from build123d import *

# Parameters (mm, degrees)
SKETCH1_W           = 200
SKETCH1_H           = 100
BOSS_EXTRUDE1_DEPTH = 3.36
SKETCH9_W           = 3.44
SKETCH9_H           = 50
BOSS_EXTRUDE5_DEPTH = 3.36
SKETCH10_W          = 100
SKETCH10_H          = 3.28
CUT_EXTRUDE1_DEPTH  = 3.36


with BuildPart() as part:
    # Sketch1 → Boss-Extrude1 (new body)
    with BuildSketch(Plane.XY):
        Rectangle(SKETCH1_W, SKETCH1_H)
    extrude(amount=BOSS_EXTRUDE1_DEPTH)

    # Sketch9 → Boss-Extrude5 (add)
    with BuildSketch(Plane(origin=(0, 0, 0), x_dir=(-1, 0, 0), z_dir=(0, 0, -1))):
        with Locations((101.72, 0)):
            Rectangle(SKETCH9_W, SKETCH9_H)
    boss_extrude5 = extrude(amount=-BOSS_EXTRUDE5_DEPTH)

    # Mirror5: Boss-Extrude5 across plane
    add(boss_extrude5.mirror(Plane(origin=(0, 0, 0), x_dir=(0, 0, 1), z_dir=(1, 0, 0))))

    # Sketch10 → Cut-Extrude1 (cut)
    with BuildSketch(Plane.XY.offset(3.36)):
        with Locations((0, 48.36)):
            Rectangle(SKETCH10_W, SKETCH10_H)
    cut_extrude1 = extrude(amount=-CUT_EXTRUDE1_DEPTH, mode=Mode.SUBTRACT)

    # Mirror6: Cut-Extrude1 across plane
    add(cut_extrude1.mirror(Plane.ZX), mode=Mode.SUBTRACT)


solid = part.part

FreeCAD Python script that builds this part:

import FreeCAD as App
import Part
import Sketcher
Q = App.Units.Quantity


def add_polygon(sketch, points):
    """Adds a closed chain of lines whose ends are joined by coincident constraints."""
    first, n = sketch.GeometryCount, len(points)
    for a, b in zip(points, points[1:] + points[:1]):
        sketch.addGeometry(Part.LineSegment(App.Vector(*a, 0), App.Vector(*b, 0)), False)
    for i in range(n):
        sketch.addConstraint(Sketcher.Constraint("Coincident", first + i, 2, first + (i + 1) % n, 1))

doc = App.newDocument("Part")
params = doc.addObject("Spreadsheet::Sheet", "Params")
for row, (alias, value) in enumerate([
    ("sketch1_width", "200 mm"),
    ("sketch1_height", "100 mm"),
    ("pad1_length", "3.36 mm"),
    ("sketch2_height", "50 mm"),
    ("sketch2_width", "3.44 mm"),
    ("pad2_length", "3.36 mm"),
    ("sketch3_width", "100 mm"),
    ("sketch3_height", "3.28 mm"),
    ("pocket1_length", "3.36 mm"),
], start=1):
    params.set(f"A{row}", alias)
    params.set(f"B{row}", "=" + value)
    params.setAlias(f"B{row}", alias)

body = doc.addObject("PartDesign::Body", "Body")

# Sketch on XY plane
sketch1 = doc.addObject("Sketcher::SketchObject", "Sketch")
body.addObject(sketch1)
sketch1.AttachmentSupport = (doc.XY_Plane, [""])
sketch1.MapMode = "FlatFace"
add_polygon(sketch1, [(-100, 50), (-100, -50), (100, -50), (100, 50)])  # lines 0-3
sketch1.addConstraint([
    Sketcher.Constraint("Vertical", 0),
    Sketcher.Constraint("Horizontal", 1),
    Sketcher.Constraint("Vertical", 2),
    Sketcher.Constraint("Horizontal", 3),
    Sketcher.Constraint("Symmetric", 0, 2, 2, 2, -1, 1),
    Sketcher.Constraint("DistanceX", 1, 1, 1, 2, Q("200 mm")),
    Sketcher.Constraint("DistanceY", 0, 2, 0, 1, Q("100 mm")),
])
sketch1.setExpression("Constraints[9]", "Params.sketch1_width")
sketch1.setExpression("Constraints[10]", "Params.sketch1_height")
pad1 = doc.addObject("PartDesign::Pad", "Pad")
body.addObject(pad1)
pad1.Profile = sketch1
pad1.setExpression("Length", "Params.pad1_length")

# Sketch on XY plane
sketch2 = doc.addObject("Sketcher::SketchObject", "Sketch001")
body.addObject(sketch2)
sketch2.AttachmentSupport = (doc.XY_Plane, [""])
sketch2.MapMode = "FlatFace"
add_polygon(sketch2, [(-100, 25), (-100, -25), (-103.4, -25), (-103.4, 25)])  # lines 0-3
sketch2.addConstraint([
    Sketcher.Constraint("Vertical", 0),
    Sketcher.Constraint("Horizontal", 1),
    Sketcher.Constraint("Vertical", 2),
    Sketcher.Constraint("Horizontal", 3),
    Sketcher.Constraint("DistanceY", 0, 2, 0, 1, Q("50 mm")),
    Sketcher.Constraint("DistanceX", 0, 2, -1, 1, Q("100 mm")),
    Sketcher.Constraint("DistanceY", 0, 2, -1, 1, Q("25 mm")),
    Sketcher.Constraint("DistanceX", 1, 2, 1, 1, Q("3.44 mm")),
])
sketch2.setExpression("Constraints[8]", "Params.sketch2_height")
sketch2.setExpression("Constraints[11]", "Params.sketch2_width")
pad2 = doc.addObject("PartDesign::Pad", "Pad001")
body.addObject(pad2)
pad2.Profile = sketch2
pad2.setExpression("Length", "Params.pad2_length")
doc.recompute()

mirrored = doc.addObject("PartDesign::Mirrored", "Mirrored")
body.addObject(mirrored)
mirrored.Originals = [pad2]
mirrored.MirrorPlane = (doc.YZ_Plane, [""])
body.Tip = mirrored

# Sketch on XY plane
sketch3 = doc.addObject("Sketcher::SketchObject", "Sketch002")
body.addObject(sketch3)
sketch3.AttachmentSupport = (doc.XY_Plane, [""])
sketch3.MapMode = "FlatFace"
sketch3.AttachmentOffset = App.Placement(App.Vector(0, 0, 3.36), App.Rotation())
add_polygon(sketch3, [(-50, 50), (-50, 46.7), (50, 46.7), (50, 50)])  # lines 0-3
sketch3.addConstraint([
    Sketcher.Constraint("Vertical", 0),
    Sketcher.Constraint("Horizontal", 1),
    Sketcher.Constraint("Vertical", 2),
    Sketcher.Constraint("Horizontal", 3),
    Sketcher.Constraint("DistanceX", 1, 1, 1, 2, Q("100 mm")),
    Sketcher.Constraint("DistanceX", 0, 2, -1, 1, Q("50 mm")),
    Sketcher.Constraint("DistanceY", -1, 1, 2, 2, Q("50 mm")),
    Sketcher.Constraint("DistanceY", 0, 2, 0, 1, Q("3.28 mm")),
])
sketch3.setExpression("Constraints[8]", "Params.sketch3_width")
sketch3.setExpression("Constraints[11]", "Params.sketch3_height")
pocket1 = doc.addObject("PartDesign::Pocket", "Pocket")
body.addObject(pocket1)
pocket1.Profile = sketch3
pocket1.setExpression("Length", "Params.pocket1_length")
doc.recompute()

mirrored2 = doc.addObject("PartDesign::Mirrored", "Mirrored001")
body.addObject(mirrored2)
mirrored2.Originals = [pocket1]
mirrored2.MirrorPlane = (doc.XZ_Plane, [""])
body.Tip = mirrored2

doc.recompute()
